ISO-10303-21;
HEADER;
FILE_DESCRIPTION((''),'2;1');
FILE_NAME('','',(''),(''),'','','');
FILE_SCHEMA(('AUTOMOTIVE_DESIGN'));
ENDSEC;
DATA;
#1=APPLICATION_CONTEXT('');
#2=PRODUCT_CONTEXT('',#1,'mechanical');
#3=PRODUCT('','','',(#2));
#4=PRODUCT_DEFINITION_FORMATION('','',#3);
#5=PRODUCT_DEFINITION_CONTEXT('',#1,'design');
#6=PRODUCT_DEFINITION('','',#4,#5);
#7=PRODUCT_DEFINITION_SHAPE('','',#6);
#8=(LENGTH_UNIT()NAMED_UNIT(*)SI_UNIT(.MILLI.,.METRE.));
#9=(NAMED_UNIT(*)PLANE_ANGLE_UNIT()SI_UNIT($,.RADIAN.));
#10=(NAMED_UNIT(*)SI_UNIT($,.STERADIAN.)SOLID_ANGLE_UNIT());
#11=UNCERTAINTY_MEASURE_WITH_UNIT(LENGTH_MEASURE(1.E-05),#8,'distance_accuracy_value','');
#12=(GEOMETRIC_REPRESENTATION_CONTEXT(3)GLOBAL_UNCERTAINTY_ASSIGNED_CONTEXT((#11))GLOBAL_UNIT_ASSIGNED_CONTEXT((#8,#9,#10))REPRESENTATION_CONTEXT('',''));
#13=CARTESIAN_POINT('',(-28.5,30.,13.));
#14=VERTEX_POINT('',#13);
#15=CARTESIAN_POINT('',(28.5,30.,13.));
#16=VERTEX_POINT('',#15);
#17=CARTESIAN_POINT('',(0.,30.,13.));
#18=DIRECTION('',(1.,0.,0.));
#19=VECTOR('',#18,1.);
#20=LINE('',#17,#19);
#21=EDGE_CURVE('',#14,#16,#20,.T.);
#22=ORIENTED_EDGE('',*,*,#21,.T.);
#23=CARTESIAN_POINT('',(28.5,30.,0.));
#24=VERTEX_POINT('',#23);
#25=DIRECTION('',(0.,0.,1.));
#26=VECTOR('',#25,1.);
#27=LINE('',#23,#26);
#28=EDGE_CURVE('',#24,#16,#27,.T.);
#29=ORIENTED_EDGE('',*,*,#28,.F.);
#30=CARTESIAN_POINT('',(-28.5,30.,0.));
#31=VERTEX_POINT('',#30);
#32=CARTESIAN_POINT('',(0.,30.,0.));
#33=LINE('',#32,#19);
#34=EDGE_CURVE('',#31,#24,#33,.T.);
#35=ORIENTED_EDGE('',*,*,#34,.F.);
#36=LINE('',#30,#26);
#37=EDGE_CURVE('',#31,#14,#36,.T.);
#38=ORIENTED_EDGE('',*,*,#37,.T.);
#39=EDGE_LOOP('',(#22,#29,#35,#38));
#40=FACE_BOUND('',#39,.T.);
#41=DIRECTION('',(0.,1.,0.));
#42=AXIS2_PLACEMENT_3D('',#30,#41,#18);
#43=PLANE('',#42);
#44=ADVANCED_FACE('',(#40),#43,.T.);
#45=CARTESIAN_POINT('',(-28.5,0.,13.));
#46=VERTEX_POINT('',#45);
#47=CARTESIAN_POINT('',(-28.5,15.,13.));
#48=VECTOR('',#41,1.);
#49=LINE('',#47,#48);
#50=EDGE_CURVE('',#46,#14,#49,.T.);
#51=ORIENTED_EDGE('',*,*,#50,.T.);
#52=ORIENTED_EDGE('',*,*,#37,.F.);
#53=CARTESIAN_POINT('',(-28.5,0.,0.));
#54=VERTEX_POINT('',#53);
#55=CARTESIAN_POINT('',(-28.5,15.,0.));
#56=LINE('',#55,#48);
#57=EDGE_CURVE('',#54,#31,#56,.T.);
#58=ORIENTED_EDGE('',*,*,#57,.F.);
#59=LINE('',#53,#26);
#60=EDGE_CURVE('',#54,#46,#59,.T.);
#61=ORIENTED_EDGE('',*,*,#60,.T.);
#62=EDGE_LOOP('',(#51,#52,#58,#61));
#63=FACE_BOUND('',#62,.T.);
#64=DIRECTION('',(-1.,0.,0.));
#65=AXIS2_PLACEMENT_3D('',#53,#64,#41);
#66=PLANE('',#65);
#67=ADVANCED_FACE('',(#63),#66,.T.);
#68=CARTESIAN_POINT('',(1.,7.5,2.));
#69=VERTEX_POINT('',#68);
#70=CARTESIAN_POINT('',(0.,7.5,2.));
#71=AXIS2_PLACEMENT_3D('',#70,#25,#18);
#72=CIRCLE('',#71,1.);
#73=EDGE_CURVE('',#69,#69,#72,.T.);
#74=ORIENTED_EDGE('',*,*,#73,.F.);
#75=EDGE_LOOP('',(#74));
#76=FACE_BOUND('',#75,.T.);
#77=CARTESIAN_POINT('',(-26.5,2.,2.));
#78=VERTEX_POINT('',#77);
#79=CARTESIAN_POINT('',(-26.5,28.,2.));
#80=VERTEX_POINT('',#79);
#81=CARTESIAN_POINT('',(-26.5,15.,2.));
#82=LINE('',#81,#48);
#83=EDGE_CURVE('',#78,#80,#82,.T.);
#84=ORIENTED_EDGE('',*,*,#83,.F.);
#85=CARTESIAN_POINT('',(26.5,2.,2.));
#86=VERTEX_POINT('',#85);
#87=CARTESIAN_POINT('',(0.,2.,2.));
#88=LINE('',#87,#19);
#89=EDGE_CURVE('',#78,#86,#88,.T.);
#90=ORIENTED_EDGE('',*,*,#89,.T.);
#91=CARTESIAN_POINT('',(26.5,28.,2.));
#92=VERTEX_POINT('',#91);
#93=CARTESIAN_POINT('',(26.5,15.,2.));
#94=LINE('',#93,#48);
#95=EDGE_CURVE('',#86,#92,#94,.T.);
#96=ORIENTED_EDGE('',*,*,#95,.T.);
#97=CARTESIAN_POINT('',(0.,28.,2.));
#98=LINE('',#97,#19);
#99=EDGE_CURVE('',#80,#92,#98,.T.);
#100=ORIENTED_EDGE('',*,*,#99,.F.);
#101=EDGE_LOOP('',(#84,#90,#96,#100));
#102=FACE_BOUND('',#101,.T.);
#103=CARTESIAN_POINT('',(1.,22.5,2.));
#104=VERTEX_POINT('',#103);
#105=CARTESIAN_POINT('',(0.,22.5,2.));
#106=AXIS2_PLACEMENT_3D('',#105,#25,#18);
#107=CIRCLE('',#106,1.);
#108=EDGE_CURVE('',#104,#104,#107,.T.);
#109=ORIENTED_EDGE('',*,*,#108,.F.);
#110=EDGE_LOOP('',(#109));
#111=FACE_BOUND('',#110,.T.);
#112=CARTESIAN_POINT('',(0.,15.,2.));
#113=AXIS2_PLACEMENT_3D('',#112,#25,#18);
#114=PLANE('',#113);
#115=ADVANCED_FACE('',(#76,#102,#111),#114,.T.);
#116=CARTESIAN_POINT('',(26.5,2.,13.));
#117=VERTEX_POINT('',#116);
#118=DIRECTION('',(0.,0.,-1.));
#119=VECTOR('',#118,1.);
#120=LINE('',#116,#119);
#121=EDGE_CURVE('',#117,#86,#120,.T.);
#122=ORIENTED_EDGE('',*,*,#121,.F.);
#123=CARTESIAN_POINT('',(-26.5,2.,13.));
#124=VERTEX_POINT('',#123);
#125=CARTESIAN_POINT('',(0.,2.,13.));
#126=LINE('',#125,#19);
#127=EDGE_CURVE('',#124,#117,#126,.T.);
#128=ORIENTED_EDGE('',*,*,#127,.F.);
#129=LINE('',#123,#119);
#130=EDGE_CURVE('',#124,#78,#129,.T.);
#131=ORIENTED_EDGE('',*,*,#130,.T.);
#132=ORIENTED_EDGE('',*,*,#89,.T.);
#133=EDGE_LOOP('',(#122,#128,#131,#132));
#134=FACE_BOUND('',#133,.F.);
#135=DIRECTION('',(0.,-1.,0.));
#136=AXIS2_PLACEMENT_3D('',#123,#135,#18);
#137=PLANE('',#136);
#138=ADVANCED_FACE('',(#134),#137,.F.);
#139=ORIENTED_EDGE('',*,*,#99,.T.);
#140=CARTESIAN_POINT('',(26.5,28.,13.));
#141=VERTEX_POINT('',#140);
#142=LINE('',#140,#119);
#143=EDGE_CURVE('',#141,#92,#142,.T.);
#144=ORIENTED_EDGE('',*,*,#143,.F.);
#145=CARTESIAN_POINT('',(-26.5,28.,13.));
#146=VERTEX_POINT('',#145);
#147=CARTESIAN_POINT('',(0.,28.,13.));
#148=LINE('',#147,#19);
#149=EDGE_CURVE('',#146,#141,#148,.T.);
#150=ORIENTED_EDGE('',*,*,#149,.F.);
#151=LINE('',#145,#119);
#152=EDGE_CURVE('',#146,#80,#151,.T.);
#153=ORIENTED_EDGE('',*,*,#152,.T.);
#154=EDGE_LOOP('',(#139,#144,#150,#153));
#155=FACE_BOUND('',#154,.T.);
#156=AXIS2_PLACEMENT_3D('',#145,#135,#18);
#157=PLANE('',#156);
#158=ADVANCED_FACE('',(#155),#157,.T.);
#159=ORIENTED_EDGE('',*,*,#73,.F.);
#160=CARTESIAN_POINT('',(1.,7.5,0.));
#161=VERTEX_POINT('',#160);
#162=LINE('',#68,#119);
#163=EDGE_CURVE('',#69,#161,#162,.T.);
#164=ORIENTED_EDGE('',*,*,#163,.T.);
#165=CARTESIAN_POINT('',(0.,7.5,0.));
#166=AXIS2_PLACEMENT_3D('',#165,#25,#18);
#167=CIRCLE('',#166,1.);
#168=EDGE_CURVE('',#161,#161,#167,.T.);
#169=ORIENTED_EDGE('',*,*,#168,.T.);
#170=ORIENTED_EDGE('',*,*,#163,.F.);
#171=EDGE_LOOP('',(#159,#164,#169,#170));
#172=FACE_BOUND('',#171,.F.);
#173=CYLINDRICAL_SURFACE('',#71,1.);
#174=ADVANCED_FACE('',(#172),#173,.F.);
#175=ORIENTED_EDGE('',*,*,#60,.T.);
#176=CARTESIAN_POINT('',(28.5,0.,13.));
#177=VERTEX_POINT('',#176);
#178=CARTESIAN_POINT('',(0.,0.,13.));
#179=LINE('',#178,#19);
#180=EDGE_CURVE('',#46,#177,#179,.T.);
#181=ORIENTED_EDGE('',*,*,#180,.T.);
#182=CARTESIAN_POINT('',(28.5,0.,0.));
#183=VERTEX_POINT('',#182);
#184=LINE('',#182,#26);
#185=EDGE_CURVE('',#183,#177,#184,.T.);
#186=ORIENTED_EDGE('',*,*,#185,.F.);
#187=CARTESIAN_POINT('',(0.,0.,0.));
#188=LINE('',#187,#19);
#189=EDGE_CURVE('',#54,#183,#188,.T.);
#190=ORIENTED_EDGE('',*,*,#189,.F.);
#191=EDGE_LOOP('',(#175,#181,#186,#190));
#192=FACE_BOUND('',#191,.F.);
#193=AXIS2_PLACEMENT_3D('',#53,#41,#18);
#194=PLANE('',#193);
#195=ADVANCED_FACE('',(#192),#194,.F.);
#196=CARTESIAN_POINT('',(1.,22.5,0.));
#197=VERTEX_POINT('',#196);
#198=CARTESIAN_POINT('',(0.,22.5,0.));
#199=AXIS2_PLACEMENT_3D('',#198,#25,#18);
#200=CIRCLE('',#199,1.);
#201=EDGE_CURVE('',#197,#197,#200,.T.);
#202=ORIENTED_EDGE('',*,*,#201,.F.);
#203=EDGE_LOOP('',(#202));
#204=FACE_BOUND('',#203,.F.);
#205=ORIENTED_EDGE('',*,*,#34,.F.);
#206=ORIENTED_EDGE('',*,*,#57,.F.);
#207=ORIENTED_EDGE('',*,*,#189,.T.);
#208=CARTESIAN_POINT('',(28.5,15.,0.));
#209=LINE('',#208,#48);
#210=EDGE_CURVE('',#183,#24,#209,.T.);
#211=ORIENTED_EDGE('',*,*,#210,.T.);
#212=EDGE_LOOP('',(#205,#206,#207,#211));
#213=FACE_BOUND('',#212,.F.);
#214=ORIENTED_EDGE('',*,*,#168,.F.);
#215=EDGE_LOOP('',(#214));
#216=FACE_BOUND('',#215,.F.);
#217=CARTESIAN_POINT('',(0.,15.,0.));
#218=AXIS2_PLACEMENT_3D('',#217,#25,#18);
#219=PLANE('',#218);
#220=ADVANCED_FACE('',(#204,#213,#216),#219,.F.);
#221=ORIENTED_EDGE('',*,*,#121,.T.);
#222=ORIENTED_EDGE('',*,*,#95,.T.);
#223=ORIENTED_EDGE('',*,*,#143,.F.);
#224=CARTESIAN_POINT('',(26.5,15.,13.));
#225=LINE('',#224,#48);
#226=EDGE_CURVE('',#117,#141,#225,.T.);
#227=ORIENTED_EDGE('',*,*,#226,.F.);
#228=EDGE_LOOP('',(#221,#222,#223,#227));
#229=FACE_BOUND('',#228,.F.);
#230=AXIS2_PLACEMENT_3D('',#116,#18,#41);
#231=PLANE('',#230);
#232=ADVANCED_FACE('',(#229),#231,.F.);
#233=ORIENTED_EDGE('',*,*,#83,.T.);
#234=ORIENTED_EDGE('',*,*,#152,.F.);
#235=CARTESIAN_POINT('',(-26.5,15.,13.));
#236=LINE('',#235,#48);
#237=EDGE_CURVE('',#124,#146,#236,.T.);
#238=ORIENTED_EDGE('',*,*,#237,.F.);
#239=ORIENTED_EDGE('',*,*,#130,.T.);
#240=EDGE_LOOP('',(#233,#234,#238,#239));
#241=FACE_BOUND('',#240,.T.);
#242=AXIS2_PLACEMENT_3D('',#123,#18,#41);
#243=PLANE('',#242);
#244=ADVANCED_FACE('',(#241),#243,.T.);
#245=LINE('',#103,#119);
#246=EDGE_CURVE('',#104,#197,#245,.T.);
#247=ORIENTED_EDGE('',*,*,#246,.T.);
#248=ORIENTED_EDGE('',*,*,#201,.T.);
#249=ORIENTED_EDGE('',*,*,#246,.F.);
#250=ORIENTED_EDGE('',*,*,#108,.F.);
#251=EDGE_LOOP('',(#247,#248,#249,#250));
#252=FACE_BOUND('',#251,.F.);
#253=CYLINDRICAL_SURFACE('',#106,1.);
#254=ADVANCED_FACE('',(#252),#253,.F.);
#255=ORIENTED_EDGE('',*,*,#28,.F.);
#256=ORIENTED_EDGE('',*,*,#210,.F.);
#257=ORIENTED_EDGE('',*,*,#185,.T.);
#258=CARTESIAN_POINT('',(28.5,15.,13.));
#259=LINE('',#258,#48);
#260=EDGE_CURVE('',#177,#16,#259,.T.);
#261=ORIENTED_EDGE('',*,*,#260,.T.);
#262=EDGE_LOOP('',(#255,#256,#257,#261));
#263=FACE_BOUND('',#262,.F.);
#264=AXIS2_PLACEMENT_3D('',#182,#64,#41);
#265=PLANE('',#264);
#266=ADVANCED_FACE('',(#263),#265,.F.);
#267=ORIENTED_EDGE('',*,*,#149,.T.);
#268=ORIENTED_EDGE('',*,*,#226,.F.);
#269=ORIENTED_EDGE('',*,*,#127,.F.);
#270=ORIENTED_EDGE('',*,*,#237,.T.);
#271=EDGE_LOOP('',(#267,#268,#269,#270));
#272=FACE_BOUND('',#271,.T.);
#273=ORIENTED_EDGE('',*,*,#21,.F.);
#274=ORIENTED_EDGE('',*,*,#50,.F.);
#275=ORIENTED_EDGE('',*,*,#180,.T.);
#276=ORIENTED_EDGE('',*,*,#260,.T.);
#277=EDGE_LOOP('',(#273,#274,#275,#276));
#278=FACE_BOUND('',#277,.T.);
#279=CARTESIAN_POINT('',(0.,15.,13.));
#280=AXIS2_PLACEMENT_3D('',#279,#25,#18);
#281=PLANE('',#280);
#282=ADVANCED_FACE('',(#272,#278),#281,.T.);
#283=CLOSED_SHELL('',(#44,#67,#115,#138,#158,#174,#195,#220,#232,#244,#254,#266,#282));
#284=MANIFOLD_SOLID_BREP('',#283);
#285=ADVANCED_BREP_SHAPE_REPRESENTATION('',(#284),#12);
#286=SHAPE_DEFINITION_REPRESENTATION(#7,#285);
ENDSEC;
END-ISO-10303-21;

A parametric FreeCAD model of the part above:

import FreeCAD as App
import Part
import Sketcher

V = App.Vector


def add_polygon(sketch, points):
    """Adds a closed chain of lines whose ends are joined by coincident constraints."""
    first, n = sketch.GeometryCount, len(points)
    for a, b in zip(points, points[1:] + points[:1]):
        sketch.addGeometry(Part.LineSegment(App.Vector(*a, 0), App.Vector(*b, 0)), False)
    for i in range(n):
        sketch.addConstraint(Sketcher.Constraint("Coincident", first + i, 2, first + (i + 1) % n, 1))

doc = App.newDocument("Part")
body = doc.addObject("PartDesign::Body", "Body")

# Sketch on XY plane
sketch1 = body.newObject("Sketcher::SketchObject", "Sketch")
sketch1.AttachmentSupport = (doc.getObject("XY_Plane"), [""])
sketch1.MapMode = "FlatFace"
add_polygon(sketch1, [(-28, 30), (-28, 0), (28, 0), (28, 30)])  # lines 0-3
sketch1.addConstraint(Sketcher.Constraint("Vertical", 0))
sketch1.addConstraint(Sketcher.Constraint("Horizontal", 1))
sketch1.addConstraint(Sketcher.Constraint("Vertical", 2))
sketch1.addConstraint(Sketcher.Constraint("Horizontal", 3))
sketch1.addConstraint(Sketcher.Constraint("Symmetric", 0, 2, 1, 2, -1, 1))
sketch1.addConstraint(Sketcher.Constraint("DistanceX", 1, 1, 1, 2, 57.0))
sketch1.addConstraint(Sketcher.Constraint("DistanceY", 0, 2, 0, 1, 30.0))
pad1 = body.newObject("PartDesign::Pad", "Pad")
pad1.Profile = sketch1
pad1.Length = 13

# Sketch on XY plane
sketch2 = body.newObject("Sketcher::SketchObject", "Sketch001")
sketch2.AttachmentSupport = (doc.getObject("XY_Plane"), [""])
sketch2.MapMode = "FlatFace"
sketch2.AttachmentOffset = App.Placement(V(0, 0, 13), App.Rotation())
add_polygon(sketch2, [(-26, 28), (-26, 2), (26, 2), (26, 28)])  # lines 0-3
sketch2.addConstraint(Sketcher.Constraint("Vertical", 0))
sketch2.addConstraint(Sketcher.Constraint("Horizontal", 1))
sketch2.addConstraint(Sketcher.Constraint("Vertical", 2))
sketch2.addConstraint(Sketcher.Constraint("Horizontal", 3))
sketch2.addConstraint(Sketcher.Constraint("DistanceX", 1, 1, 1, 2, 53.0))
sketch2.addConstraint(Sketcher.Constraint("DistanceY", 0, 2, 0, 1, 26.0))
sketch2.addConstraint(Sketcher.Constraint("DistanceY", -1, 1, 0, 2, 2.0))
sketch2.addConstraint(Sketcher.Constraint("DistanceX", 0, 2, -1, 1, 26.5))
pocket1 = body.newObject("PartDesign::Pocket", "Pocket")
pocket1.Profile = sketch2
pocket1.Length = 11

# Sketch on XY plane
sketch3 = body.newObject("Sketcher::SketchObject", "Sketch002")
sketch3.AttachmentSupport = (doc.getObject("XY_Plane"), [""])
sketch3.MapMode = "FlatFace"
sketch3.AttachmentOffset = App.Placement(V(0, 0, 2), App.Rotation())
sketch3.addGeometry(Part.Circle(V(0, 22.5, 0), V(0, 0, 1), 1), False)
sketch3.addGeometry(Part.Circle(V(0, 7.5, 0), V(0, 0, 1), 1), False)
sketch3.addConstraint(Sketcher.Constraint("Equal", 0, 1))
sketch3.addConstraint(Sketcher.Constraint("PointOnObject", 0, 3, -2))
sketch3.addConstraint(Sketcher.Constraint("PointOnObject", 1, 3, -2))
sketch3.addConstraint(Sketcher.Constraint("Diameter", 0, 2.0))
sketch3.addConstraint(Sketcher.Constraint("DistanceY", 1, 3, 0, 3, 15.0))
sketch3.addConstraint(Sketcher.Constraint("DistanceY", -1, 1, 0, 3, 22.5))
pocket2 = body.newObject("PartDesign::Pocket", "Pocket001")
pocket2.Profile = sketch3
pocket2.Type = "ThroughAll"

doc.recompute()
